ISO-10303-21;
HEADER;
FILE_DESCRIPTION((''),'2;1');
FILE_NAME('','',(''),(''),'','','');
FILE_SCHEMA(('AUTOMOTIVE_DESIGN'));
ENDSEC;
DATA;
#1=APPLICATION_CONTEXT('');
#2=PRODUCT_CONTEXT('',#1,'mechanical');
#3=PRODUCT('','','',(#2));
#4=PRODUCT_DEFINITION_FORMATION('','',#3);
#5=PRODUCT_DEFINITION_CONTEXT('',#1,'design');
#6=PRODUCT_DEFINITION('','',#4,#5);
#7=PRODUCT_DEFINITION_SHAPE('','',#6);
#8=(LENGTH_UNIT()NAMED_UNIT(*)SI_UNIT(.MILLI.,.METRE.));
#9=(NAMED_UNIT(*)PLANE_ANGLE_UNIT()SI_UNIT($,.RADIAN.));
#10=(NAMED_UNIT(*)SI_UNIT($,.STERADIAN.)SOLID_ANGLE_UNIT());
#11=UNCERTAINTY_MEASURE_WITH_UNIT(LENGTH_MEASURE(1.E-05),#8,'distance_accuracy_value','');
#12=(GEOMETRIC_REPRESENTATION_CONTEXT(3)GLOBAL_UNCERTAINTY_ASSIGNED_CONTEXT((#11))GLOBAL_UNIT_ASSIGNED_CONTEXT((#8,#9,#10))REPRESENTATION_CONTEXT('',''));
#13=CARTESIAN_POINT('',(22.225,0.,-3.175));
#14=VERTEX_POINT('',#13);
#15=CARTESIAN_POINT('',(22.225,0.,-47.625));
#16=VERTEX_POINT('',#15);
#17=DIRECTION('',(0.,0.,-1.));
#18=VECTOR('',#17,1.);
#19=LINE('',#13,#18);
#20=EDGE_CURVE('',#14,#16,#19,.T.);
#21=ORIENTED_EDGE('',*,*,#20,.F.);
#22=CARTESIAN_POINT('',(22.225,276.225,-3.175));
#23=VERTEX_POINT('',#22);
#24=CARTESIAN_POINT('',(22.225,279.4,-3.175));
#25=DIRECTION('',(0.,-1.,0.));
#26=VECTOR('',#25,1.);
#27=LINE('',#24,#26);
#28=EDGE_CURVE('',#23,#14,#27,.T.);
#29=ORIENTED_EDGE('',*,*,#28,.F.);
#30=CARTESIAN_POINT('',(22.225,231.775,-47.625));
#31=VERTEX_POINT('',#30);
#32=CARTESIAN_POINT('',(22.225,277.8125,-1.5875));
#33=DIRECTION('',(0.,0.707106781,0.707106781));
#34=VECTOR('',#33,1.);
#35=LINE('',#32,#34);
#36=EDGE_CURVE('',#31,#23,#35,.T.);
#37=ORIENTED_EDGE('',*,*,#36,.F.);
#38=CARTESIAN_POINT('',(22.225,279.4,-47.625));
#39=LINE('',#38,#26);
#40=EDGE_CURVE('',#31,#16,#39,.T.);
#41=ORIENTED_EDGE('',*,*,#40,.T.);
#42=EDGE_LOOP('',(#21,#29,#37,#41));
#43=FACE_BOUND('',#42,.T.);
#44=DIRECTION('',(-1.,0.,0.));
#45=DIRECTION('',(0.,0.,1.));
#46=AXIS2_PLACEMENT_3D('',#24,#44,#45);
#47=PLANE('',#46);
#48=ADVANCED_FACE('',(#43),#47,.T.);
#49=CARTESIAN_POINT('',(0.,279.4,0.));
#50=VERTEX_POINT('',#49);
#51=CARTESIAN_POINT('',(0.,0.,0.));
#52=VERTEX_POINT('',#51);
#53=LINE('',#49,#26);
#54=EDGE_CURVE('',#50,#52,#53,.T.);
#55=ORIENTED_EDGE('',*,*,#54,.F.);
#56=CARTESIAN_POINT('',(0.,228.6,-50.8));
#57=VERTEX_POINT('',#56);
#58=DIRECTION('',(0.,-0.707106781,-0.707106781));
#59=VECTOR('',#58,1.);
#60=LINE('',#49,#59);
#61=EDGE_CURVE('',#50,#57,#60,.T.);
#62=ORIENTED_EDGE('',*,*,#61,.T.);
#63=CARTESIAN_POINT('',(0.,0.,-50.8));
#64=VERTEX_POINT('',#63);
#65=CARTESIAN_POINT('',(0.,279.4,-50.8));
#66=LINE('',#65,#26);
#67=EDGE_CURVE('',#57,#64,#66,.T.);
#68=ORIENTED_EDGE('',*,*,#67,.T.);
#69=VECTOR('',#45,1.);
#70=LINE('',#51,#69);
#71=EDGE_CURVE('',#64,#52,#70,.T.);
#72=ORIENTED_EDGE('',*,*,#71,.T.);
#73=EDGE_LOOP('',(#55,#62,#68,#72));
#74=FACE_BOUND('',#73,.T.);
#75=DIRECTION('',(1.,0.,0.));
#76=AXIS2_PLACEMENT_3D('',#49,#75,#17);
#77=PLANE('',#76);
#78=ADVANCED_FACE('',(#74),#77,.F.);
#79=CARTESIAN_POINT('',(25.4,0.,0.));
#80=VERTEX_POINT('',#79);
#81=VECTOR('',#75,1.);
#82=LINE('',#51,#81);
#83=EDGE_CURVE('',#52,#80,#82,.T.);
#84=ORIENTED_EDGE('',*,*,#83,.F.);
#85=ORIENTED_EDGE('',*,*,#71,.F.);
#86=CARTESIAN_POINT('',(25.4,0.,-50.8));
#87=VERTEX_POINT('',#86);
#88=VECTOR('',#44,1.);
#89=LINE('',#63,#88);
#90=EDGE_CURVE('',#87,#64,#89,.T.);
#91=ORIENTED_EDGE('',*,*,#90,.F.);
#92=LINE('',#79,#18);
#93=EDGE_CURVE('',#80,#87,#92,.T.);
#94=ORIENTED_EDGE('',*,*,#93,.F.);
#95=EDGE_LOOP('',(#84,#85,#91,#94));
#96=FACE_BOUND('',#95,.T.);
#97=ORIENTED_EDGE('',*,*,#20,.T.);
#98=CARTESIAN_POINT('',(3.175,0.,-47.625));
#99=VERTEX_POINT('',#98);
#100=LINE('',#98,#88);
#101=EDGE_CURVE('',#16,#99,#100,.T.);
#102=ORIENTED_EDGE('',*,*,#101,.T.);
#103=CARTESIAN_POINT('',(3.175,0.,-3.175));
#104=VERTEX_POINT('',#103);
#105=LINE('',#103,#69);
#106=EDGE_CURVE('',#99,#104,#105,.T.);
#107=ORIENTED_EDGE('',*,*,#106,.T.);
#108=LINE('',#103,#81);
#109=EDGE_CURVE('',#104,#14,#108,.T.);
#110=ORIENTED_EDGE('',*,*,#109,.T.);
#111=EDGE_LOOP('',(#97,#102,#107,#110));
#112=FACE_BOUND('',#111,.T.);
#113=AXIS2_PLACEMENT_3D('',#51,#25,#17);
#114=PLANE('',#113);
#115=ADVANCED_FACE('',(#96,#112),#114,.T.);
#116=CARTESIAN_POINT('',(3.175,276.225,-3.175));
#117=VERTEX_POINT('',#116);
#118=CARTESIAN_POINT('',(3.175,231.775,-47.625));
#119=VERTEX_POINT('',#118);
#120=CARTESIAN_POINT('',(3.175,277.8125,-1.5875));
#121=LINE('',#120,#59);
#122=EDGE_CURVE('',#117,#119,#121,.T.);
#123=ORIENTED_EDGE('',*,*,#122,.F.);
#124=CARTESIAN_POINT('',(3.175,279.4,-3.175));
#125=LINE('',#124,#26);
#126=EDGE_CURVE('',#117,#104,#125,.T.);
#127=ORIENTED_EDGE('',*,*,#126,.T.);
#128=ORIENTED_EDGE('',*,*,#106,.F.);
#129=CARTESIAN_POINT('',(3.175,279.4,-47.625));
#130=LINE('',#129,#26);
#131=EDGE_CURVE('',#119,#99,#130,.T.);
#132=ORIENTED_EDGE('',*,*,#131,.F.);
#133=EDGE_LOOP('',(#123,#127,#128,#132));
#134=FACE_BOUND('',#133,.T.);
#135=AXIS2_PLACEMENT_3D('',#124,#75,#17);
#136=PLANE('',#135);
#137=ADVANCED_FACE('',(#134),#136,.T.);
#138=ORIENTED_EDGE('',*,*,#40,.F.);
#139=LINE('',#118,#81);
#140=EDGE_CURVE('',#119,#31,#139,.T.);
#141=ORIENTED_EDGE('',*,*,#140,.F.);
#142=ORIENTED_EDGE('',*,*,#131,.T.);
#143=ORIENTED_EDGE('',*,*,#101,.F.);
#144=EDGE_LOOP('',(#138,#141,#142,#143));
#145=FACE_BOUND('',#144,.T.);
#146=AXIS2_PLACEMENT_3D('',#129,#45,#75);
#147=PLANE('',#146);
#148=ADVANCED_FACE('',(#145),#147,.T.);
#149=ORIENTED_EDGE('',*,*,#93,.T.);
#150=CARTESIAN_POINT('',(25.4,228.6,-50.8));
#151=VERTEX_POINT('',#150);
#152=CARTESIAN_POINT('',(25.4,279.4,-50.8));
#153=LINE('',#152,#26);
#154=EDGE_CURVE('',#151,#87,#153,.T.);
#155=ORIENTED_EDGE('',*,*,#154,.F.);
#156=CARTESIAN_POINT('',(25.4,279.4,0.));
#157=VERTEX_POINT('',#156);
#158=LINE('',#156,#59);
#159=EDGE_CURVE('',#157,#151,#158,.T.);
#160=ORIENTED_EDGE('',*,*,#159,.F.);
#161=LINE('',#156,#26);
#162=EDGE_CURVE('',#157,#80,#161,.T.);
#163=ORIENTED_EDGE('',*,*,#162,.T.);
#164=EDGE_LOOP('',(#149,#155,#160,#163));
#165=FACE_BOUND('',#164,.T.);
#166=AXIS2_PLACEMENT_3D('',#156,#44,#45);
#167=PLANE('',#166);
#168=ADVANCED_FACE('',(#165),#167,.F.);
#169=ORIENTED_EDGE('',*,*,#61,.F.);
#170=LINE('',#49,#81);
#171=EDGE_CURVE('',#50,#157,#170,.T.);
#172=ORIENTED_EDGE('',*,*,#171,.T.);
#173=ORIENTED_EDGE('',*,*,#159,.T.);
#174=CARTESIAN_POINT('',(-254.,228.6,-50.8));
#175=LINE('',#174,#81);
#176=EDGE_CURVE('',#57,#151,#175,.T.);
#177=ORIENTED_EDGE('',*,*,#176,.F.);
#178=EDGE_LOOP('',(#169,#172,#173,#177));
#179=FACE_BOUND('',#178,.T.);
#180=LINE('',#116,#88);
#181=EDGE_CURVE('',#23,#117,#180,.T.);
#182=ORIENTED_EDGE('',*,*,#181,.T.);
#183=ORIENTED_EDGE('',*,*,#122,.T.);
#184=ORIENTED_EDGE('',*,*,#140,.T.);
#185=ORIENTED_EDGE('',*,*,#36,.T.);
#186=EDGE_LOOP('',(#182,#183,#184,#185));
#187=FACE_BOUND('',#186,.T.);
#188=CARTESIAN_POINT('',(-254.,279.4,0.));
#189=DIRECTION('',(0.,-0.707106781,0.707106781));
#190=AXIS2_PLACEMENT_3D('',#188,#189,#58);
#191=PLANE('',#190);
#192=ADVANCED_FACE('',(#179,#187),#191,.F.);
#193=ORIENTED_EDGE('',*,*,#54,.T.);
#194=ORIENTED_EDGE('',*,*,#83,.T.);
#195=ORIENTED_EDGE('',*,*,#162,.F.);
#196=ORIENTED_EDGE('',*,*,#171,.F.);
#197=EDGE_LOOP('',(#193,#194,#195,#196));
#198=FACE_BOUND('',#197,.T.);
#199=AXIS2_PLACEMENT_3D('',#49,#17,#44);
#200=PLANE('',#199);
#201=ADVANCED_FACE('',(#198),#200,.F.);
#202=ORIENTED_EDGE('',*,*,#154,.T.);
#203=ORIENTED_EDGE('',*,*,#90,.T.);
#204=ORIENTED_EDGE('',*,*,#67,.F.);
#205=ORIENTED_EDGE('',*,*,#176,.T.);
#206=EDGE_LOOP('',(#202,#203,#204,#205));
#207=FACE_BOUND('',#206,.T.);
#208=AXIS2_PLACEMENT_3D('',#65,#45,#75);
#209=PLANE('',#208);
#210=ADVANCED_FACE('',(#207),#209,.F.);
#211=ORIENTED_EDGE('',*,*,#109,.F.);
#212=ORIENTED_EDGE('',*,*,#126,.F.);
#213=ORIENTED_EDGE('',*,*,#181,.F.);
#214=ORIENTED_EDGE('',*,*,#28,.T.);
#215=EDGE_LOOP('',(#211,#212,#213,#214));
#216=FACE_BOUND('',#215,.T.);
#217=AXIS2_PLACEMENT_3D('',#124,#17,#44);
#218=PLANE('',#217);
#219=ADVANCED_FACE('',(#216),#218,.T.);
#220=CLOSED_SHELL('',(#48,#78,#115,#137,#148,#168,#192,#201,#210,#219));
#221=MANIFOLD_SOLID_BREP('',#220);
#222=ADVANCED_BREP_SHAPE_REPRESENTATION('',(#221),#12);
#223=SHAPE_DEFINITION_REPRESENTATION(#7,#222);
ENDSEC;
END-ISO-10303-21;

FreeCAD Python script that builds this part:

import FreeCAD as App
import Part
import Sketcher
Q = App.Units.Quantity

doc = App.newDocument("Part")
params = doc.addObject("Spreadsheet::Sheet", "Params")
for row, (alias, value) in enumerate([
    ("sketch1_width", "1 in"),
    ("sketch1_height", "2 in"),
    ("sketch1_width2", "0.75 in"),
    ("sketch1_height2", "1.75 in"),
    ("pad1_length", "11 in"),
    ("sketch2_width", "2 in"),
    ("pocket1_length", "11 in"),
], start=1):
    params.set(f"A{row}", alias)
    params.set(f"B{row}", "=" + value)
    params.setAlias(f"B{row}", alias)

body = doc.addObject("PartDesign::Body", "Body")

sketch1 = body.newObject("Sketcher::SketchObject", "Sketch")
sketch1.AttachmentSupport = (doc.getObject("XZ_Plane"), [""])
sketch1.MapMode = "FlatFace"
sketch1.addGeometry(Part.LineSegment(App.Vector(0, -50.8, 0), App.Vector(0, 0, 0)), False)
sketch1.addGeometry(Part.LineSegment(App.Vector(0, 0, 0), App.Vector(25.4, 0, 0)), False)
sketch1.addGeometry(Part.LineSegment(App.Vector(25.4, 0, 0), App.Vector(25.4, -50.8, 0)), False)
sketch1.addGeometry(Part.LineSegment(App.Vector(25.4, -50.8, 0), App.Vector(0, -50.8, 0)), False)
sketch1.addGeometry(Part.LineSegment(App.Vector(22.225, -3.175, 0), App.Vector(3.175, -3.175, 0)), False)
sketch1.addGeometry(Part.LineSegment(App.Vector(3.175, -3.175, 0), App.Vector(3.175, -47.625, 0)), False)
sketch1.addGeometry(Part.LineSegment(App.Vector(3.175, -47.625, 0), App.Vector(22.225, -47.625, 0)), False)
sketch1.addGeometry(Part.LineSegment(App.Vector(22.225, -47.625, 0), App.Vector(22.225, -3.175, 0)), False)
sketch1.addConstraint(Sketcher.Constraint("Coincident", 0, 2, 1, 1))
sketch1.addConstraint(Sketcher.Constraint("Coincident", 1, 2, 2, 1))
sketch1.addConstraint(Sketcher.Constraint("Coincident", 2, 2, 3, 1))
sketch1.addConstraint(Sketcher.Constraint("Coincident", 3, 2, 0, 1))
sketch1.addConstraint(Sketcher.Constraint("Coincident", 4, 2, 5, 1))
sketch1.addConstraint(Sketcher.Constraint("Coincident", 5, 2, 6, 1))
sketch1.addConstraint(Sketcher.Constraint("Coincident", 6, 2, 7, 1))
sketch1.addConstraint(Sketcher.Constraint("Coincident", 7, 2, 4, 1))
sketch1.addConstraint(Sketcher.Constraint("Vertical", 0))
sketch1.addConstraint(Sketcher.Constraint("Horizontal", 1))
sketch1.addConstraint(Sketcher.Constraint("Vertical", 2))
sketch1.addConstraint(Sketcher.Constraint("Horizontal", 3))
sketch1.addConstraint(Sketcher.Constraint("Horizontal", 4))
sketch1.addConstraint(Sketcher.Constraint("Vertical", 5))
sketch1.addConstraint(Sketcher.Constraint("Horizontal", 6))
sketch1.addConstraint(Sketcher.Constraint("Vertical", 7))
sketch1.addConstraint(Sketcher.Constraint("Coincident", 0, 2, -1, 1))
sketch1.addConstraint(Sketcher.Constraint("DistanceX", 1, 1, 1, 2, Q("1 in")))
sketch1.addConstraint(Sketcher.Constraint("DistanceY", 0, 1, 0, 2, Q("2 in")))
sketch1.addConstraint(Sketcher.Constraint("DistanceX", 4, 2, 4, 1, Q("0.75 in")))
sketch1.addConstraint(Sketcher.Constraint("DistanceY", 5, 2, 5, 1, Q("1.75 in")))
sketch1.addConstraint(Sketcher.Constraint("DistanceX", -1, 1, 4, 2, Q("0.125 in")))
sketch1.addConstraint(Sketcher.Constraint("DistanceY", 4, 2, -1, 1, Q("0.125 in")))
sketch1.setExpression("Constraints[17]", "Params.sketch1_width")
sketch1.setExpression("Constraints[18]", "Params.sketch1_height")
sketch1.setExpression("Constraints[19]", "Params.sketch1_width2")
sketch1.setExpression("Constraints[20]", "Params.sketch1_height2")
pad1 = body.newObject("PartDesign::Pad", "Pad")
pad1.Profile = sketch1
pad1.setExpression("Length", "Params.pad1_length")
pad1.Reversed = True

sketch2 = body.newObject("Sketcher::SketchObject", "Sketch001")
sketch2.AttachmentSupport = (doc.getObject("YZ_Plane"), [""])
sketch2.MapMode = "FlatFace"
sketch2.AttachmentOffset = App.Placement(App.Vector(0, 0, 1 * 25.4), App.Rotation())
sketch2.addGeometry(Part.LineSegment(App.Vector(279.4, 0, 0), App.Vector(228.6, -50.8, 0)), False)
sketch2.addGeometry(Part.LineSegment(App.Vector(228.6, -50.8, 0), App.Vector(279.4, -50.8, 0)), False)
sketch2.addGeometry(Part.LineSegment(App.Vector(279.4, -50.8, 0), App.Vector(279.4, 0, 0)), False)
sketch2.addConstraint(Sketcher.Constraint("Coincident", 0, 2, 1, 1))
sketch2.addConstraint(Sketcher.Constraint("Coincident", 1, 2, 2, 1))
sketch2.addConstraint(Sketcher.Constraint("Coincident", 2, 2, 0, 1))
sketch2.addConstraint(Sketcher.Constraint("Horizontal", 1))
sketch2.addConstraint(Sketcher.Constraint("Vertical", 2))
sketch2.addConstraint(Sketcher.Constraint("PointOnObject", 2, 2, -1))
sketch2.addConstraint(Sketcher.Constraint("Equal", 1, 2))
sketch2.addConstraint(Sketcher.Constraint("DistanceX", 1, 1, 1, 2, Q("2 in")))
sketch2.addConstraint(Sketcher.Constraint("DistanceX", -1, 1, 0, 2, Q("9 in")))
sketch2.setExpression("Constraints[7]", "Params.sketch2_width")
pocket1 = body.newObject("PartDesign::Pocket", "Pocket")
pocket1.Profile = sketch2
pocket1.setExpression("Length", "Params.pocket1_length")

doc.recompute()
